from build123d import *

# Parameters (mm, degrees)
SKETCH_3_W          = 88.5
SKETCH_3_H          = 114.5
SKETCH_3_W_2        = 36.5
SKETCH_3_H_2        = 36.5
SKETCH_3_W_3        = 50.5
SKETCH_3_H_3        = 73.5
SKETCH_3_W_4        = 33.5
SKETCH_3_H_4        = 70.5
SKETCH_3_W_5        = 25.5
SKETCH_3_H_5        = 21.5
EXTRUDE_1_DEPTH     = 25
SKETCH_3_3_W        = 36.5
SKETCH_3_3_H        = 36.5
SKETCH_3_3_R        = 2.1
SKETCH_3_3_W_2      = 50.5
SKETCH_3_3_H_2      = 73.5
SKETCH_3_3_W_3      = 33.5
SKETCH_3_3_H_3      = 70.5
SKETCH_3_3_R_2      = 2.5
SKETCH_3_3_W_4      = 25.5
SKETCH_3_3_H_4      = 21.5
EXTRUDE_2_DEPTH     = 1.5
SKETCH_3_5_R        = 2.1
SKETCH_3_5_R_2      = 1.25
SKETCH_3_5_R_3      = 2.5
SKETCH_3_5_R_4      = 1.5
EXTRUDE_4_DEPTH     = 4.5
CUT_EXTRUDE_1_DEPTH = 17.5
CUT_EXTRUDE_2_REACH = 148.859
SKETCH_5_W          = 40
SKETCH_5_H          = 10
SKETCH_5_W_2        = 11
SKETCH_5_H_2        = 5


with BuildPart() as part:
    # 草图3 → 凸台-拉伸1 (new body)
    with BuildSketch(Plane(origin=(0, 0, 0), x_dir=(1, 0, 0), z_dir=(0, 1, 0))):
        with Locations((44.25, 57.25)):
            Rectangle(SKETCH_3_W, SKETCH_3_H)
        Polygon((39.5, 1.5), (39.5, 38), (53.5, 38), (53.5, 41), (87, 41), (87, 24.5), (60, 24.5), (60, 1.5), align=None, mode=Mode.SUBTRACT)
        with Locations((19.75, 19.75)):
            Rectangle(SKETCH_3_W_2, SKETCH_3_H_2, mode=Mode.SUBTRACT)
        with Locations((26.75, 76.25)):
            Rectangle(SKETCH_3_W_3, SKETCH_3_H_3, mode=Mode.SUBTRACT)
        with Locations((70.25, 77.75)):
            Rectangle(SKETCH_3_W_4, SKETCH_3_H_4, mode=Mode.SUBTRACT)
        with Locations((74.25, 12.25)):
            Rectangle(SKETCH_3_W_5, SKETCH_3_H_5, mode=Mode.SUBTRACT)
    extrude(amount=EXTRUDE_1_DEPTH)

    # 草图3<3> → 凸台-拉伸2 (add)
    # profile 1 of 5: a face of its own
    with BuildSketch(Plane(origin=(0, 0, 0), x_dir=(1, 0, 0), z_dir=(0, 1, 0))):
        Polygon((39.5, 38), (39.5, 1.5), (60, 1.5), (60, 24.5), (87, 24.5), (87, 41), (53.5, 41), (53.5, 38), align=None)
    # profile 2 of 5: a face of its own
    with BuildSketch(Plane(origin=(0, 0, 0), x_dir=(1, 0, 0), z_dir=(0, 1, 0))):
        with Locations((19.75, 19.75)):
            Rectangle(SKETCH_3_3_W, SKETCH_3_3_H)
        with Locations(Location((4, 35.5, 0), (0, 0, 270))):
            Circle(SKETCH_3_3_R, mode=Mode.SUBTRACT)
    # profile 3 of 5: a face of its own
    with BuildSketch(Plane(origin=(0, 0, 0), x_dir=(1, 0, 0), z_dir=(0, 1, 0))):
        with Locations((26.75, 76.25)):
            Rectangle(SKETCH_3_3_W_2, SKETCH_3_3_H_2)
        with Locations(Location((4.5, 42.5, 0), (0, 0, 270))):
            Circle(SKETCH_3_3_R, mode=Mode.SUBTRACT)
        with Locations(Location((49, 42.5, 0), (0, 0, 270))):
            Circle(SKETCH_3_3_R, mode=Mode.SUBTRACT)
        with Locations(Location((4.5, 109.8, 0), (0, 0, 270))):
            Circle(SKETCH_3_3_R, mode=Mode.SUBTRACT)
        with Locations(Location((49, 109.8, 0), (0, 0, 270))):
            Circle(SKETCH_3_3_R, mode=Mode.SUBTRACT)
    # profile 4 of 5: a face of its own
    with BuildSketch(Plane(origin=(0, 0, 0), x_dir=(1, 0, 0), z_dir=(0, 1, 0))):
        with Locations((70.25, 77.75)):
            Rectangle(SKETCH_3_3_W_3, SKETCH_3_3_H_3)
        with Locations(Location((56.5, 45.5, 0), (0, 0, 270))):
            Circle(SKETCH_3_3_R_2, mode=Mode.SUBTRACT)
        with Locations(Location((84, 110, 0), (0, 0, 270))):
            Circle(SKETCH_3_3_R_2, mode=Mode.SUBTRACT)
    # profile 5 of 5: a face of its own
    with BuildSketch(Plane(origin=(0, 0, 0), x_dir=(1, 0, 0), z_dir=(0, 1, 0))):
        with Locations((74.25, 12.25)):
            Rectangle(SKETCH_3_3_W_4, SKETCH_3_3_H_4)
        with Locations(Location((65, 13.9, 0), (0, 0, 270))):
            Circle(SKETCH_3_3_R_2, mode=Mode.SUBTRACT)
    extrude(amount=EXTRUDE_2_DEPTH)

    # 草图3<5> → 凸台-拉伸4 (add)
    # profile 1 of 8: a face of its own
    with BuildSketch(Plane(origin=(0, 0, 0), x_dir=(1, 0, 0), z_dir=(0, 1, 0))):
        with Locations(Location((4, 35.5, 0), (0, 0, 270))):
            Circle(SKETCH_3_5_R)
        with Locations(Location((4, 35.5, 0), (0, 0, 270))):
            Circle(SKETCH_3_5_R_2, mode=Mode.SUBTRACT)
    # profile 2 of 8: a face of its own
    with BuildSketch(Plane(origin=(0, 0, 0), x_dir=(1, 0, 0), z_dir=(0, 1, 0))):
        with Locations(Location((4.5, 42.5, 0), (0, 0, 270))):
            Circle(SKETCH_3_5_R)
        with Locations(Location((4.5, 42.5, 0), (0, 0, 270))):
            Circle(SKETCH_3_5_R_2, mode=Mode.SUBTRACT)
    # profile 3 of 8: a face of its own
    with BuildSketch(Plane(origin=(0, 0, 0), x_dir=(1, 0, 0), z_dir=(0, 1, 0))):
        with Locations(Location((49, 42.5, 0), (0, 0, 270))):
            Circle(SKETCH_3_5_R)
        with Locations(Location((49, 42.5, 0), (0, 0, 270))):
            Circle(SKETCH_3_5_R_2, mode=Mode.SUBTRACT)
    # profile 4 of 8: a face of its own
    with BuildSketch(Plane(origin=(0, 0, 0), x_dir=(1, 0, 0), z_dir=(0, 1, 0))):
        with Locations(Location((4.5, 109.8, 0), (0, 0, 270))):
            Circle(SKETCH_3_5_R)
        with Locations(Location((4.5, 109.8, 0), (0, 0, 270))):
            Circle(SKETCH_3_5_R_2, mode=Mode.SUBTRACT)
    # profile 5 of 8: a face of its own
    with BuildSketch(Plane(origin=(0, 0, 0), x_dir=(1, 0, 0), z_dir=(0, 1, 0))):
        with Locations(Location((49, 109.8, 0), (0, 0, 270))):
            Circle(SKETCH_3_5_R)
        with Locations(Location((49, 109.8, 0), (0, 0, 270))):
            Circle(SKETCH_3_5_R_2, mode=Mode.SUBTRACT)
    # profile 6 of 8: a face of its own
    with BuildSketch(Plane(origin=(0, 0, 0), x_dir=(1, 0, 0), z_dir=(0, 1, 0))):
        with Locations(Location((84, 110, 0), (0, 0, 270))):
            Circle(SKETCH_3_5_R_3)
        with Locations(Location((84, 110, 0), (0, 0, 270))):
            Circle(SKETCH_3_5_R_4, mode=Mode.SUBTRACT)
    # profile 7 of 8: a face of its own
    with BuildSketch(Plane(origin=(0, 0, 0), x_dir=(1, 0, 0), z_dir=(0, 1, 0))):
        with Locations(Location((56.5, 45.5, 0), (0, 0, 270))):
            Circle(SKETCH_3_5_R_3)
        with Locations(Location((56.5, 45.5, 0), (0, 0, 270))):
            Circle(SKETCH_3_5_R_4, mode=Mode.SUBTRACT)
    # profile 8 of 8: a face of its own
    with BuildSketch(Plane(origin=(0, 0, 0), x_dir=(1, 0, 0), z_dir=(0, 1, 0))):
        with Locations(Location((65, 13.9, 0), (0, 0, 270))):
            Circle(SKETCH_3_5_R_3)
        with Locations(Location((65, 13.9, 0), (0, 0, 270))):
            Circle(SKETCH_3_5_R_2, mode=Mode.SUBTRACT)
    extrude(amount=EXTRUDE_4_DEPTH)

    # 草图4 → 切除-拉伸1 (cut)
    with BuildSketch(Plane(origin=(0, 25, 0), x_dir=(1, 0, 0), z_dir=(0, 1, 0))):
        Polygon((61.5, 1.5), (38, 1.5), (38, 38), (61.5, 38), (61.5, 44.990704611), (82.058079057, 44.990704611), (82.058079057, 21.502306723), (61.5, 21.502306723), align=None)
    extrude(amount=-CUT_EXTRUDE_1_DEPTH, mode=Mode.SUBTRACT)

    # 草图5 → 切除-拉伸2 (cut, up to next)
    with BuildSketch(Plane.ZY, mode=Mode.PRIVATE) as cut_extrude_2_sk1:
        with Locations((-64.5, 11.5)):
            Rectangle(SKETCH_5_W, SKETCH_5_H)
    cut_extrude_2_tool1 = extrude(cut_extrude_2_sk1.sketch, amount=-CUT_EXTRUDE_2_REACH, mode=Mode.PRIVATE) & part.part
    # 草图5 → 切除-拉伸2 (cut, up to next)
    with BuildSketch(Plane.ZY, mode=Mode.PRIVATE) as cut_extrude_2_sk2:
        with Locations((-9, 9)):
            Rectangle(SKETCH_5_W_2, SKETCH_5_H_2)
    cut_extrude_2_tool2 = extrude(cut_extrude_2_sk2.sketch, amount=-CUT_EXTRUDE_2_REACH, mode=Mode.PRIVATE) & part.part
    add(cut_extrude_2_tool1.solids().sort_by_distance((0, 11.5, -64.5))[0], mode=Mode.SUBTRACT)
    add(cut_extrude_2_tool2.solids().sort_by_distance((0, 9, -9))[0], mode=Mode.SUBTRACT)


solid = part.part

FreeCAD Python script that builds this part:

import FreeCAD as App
import Part
import Sketcher
Q = App.Units.Quantity


def add_polygon(sketch, points):
    """Adds a closed chain of lines whose ends are joined by coincident constraints."""
    first, n = sketch.GeometryCount, len(points)
    for a, b in zip(points, points[1:] + points[:1]):
        sketch.addGeometry(Part.LineSegment(App.Vector(*a, 0), App.Vector(*b, 0)), False)
    for i in range(n):
        sketch.addConstraint(Sketcher.Constraint("Coincident", first + i, 2, first + (i + 1) % n, 1))

doc = App.newDocument("Part")
body = doc.addObject("PartDesign::Body", "Body")

# Sketch on XZ plane
sketch1 = body.newObject("Sketcher::SketchObject", "Sketch")
sketch1.AttachmentSupport = (doc.getObject("XZ_Plane"), [""])
sketch1.MapMode = "FlatFace"
add_polygon(sketch1, [(0, -114.5), (0, 0), (88.5, 0), (88.5, -114.5)])  # lines 0-3
add_polygon(sketch1, [(38, -1.5), (1.5, -1.5), (1.5, -38), (38, -38)])  # lines 4-7
add_polygon(sketch1, [(60, -1.5), (39.5, -1.5), (39.5, -38), (53.5, -38), (53.5, -41), (87, -41), (87, -24.5), (60, -24.5)])  # lines 8-15
add_polygon(sketch1, [(87, -1.5), (61.5, -1.5), (61.5, -23), (87, -23)])  # lines 16-19
add_polygon(sketch1, [(52, -39.5), (1.5, -39.5), (1.5, -113), (52, -113)])  # lines 20-23
add_polygon(sketch1, [(87, -42.5), (53.5, -42.5), (53.5, -113), (87, -113)])  # lines 24-27
sketch1.addConstraint([
    Sketcher.Constraint("Vertical", 0),
    Sketcher.Constraint("Horizontal", 1),
    Sketcher.Constraint("Vertical", 2),
    Sketcher.Constraint("Horizontal", 3),
    Sketcher.Constraint("Horizontal", 4),
    Sketcher.Constraint("Vertical", 5),
    Sketcher.Constraint("Horizontal", 6),
    Sketcher.Constraint("Vertical", 7),
    Sketcher.Constraint("Horizontal", 8),
    Sketcher.Constraint("Vertical", 9),
    Sketcher.Constraint("Horizontal", 10),
    Sketcher.Constraint("Vertical", 11),
    Sketcher.Constraint("Horizontal", 12),
    Sketcher.Constraint("Vertical", 13),
    Sketcher.Constraint("Horizontal", 14),
    Sketcher.Constraint("Vertical", 15),
    Sketcher.Constraint("Horizontal", 16),
    Sketcher.Constraint("Vertical", 17),
    Sketcher.Constraint("Horizontal", 18),
    Sketcher.Constraint("Vertical", 19),
    Sketcher.Constraint("Horizontal", 20),
    Sketcher.Constraint("Vertical", 21),
    Sketcher.Constraint("Horizontal", 22),
    Sketcher.Constraint("Vertical", 23),
    Sketcher.Constraint("Horizontal", 24),
    Sketcher.Constraint("Vertical", 25),
    Sketcher.Constraint("Horizontal", 26),
    Sketcher.Constraint("Vertical", 27),
    Sketcher.Constraint("Coincident", 0, 2, -1, 1),
    Sketcher.Constraint("Horizontal", 7, 2, 8, 2),
    Sketcher.Constraint("Horizontal", 6, 2, 9, 2),
    Sketcher.Constraint("Horizontal", 15, 2, 16, 2),
    Sketcher.Constraint("Horizontal", 22, 2, 25, 2),
    Sketcher.Constraint("Vertical", 13, 2, 18, 2),
    Sketcher.Constraint("Vertical", 5, 2, 20, 2),
    Sketcher.Constraint("Vertical", 11, 2, 24, 2),
    Sketcher.Constraint("Vertical", 19, 2, 26, 2),
    Sketcher.Constraint("Equal", 6, 5),
    Sketcher.Constraint("DistanceX", 10, 1, 10, 2, Q("14 mm")),
    Sketcher.Constraint("DistanceX", 14, 2, 14, 1, Q("27 mm")),
    Sketcher.Constraint("DistanceY", 11, 2, 11, 1, Q("3 mm")),
    Sketcher.Constraint("DistanceY", 15, 1, 15, 2, Q("23 mm")),
    Sketcher.Constraint("DistanceX", 1, 1, 1, 2, Q("88.5 mm")),
    Sketcher.Constraint("DistanceX", 4, 2, 4, 1, Q("36.5 mm")),
    Sketcher.Constraint("DistanceX", 8, 2, 8, 1, Q("20.5 mm")),
    Sketcher.Constraint("DistanceX", 16, 2, 16, 1, Q("25.5 mm")),
    Sketcher.Constraint("DistanceX", 20, 2, 20, 1, Q("50.5 mm")),
    Sketcher.Constraint("DistanceY", 0, 1, 0, 2, Q("114.5 mm")),
    Sketcher.Constraint("DistanceY", 17, 2, 17, 1, Q("21.5 mm")),
    Sketcher.Constraint("DistanceY", 21, 2, 21, 1, Q("73.5 mm")),
    Sketcher.Constraint("DistanceY", 25, 2, 25, 1, Q("70.5 mm")),
    Sketcher.Constraint("DistanceY", 5, 2, -1, 1, Q("38 mm")),
    Sketcher.Constraint("DistanceX", -1, 1, 6, 2, Q("38 mm")),
    Sketcher.Constraint("DistanceX", -1, 1, 12, 2, Q("87 mm")),
    Sketcher.Constraint("DistanceY", 21, 2, -1, 1, Q("113 mm")),
])
pad1 = body.newObject("PartDesign::Pad", "Pad")
pad1.Profile = sketch1
pad1.Length = 25
pad1.Reversed = True

# Sketch on XZ plane
sketch2 = body.newObject("Sketcher::SketchObject", "Sketch001")
sketch2.AttachmentSupport = (doc.getObject("XZ_Plane"), [""])
sketch2.MapMode = "FlatFace"
add_polygon(sketch2, [(39.5, -38), (39.5, -1.5), (60, -1.5), (60, -24.5), (87, -24.5), (87, -41), (53.5, -41), (53.5, -38)])  # lines 0-7
add_polygon(sketch2, [(1.5, -38), (1.5, -1.5), (38, -1.5), (38, -38)])  # lines 8-11
sketch2.addGeometry(Part.Circle(App.Vector(4, -35.5, 0), App.Vector(0, 0, 1), 2.1), False)  # 12
add_polygon(sketch2, [(1.5, -113), (1.5, -39.5), (52, -39.5), (52, -113)])  # lines 13-16
sketch2.addGeometry(Part.Circle(App.Vector(4.5, -42.5, 0), App.Vector(0, 0, 1), 2.1), False)  # 17
sketch2.addGeometry(Part.Circle(App.Vector(49, -42.5, 0), App.Vector(0, 0, 1), 2.1), False)  # 18
sketch2.addGeometry(Part.Circle(App.Vector(4.5, -109.8, 0), App.Vector(0, 0, 1), 2.1), False)  # 19
sketch2.addGeometry(Part.Circle(App.Vector(49, -109.8, 0), App.Vector(0, 0, 1), 2.1), False)  # 20
add_polygon(sketch2, [(53.5, -113), (53.5, -42.5), (87, -42.5), (87, -113)])  # lines 21-24
sketch2.addGeometry(Part.Circle(App.Vector(56.5, -45.5, 0), App.Vector(0, 0, 1), 2.5), False)  # 25
sketch2.addGeometry(Part.Circle(App.Vector(84, -110, 0), App.Vector(0, 0, 1), 2.5), False)  # 26
add_polygon(sketch2, [(61.5, -23), (61.5, -1.5), (87, -1.5), (87, -23)])  # lines 27-30
sketch2.addGeometry(Part.Circle(App.Vector(65, -13.9, 0), App.Vector(0, 0, 1), 2.5), False)  # 31
sketch2.addConstraint([
    Sketcher.Constraint("Vertical", 0),
    Sketcher.Constraint("Horizontal", 1),
    Sketcher.Constraint("Vertical", 2),
    Sketcher.Constraint("Horizontal", 3),
    Sketcher.Constraint("Vertical", 4),
    Sketcher.Constraint("Horizontal", 5),
    Sketcher.Constraint("Vertical", 6),
    Sketcher.Constraint("Horizontal", 7),
    Sketcher.Constraint("Vertical", 8),
    Sketcher.Constraint("Horizontal", 9),
    Sketcher.Constraint("Vertical", 10),
    Sketcher.Constraint("Horizontal", 11),
    Sketcher.Constraint("Vertical", 13),
    Sketcher.Constraint("Horizontal", 14),
    Sketcher.Constraint("Vertical", 15),
    Sketcher.Constraint("Horizontal", 16),
    Sketcher.Constraint("Vertical", 21),
    Sketcher.Constraint("Horizontal", 22),
    Sketcher.Constraint("Vertical", 23),
    Sketcher.Constraint("Horizontal", 24),
    Sketcher.Constraint("Vertical", 27),
    Sketcher.Constraint("Horizontal", 28),
    Sketcher.Constraint("Vertical", 29),
    Sketcher.Constraint("Horizontal", 30),
    Sketcher.Constraint("Equal", 12, 17),
    Sketcher.Constraint("Equal", 17, 18),
    Sketcher.Constraint("Equal", 18, 19),
    Sketcher.Constraint("Equal", 19, 20),
    Sketcher.Constraint("Equal", 25, 26),
    Sketcher.Constraint("Equal", 26, 31),
    Sketcher.Constraint("Horizontal", 17, 3, 18, 3),
    Sketcher.Constraint("Horizontal", 19, 3, 20, 3),
    Sketcher.Constraint("Horizontal", 1, 2, 8, 2),
    Sketcher.Constraint("Horizontal", 7, 2, 10, 2),
    Sketcher.Constraint("Horizontal", 18, 3, 21, 2),
    Sketcher.Constraint("Horizontal", 16, 2, 23, 2),
    Sketcher.Constraint("Horizontal", 9, 2, 27, 2),
    Sketcher.Constraint("Vertical", 17, 3, 19, 3),
    Sketcher.Constraint("Vertical", 18, 3, 20, 3),
    Sketcher.Constraint("Vertical", 11, 2, 13, 2),
    Sketcher.Constraint("Vertical", 6, 2, 21, 2),
    Sketcher.Constraint("Vertical", 4, 2, 22, 2),
    Sketcher.Constraint("Vertical", 23, 2, 28, 2),
    Sketcher.Constraint("Equal", 11, 0),
    Sketcher.Constraint("Diameter", 25, Q("5 mm")),
    Sketcher.Constraint("Diameter", 12, Q("4.2 mm")),
    Sketcher.Constraint("DistanceX", 3, 1, 3, 2, Q("27 mm")),
    Sketcher.Constraint("DistanceX", 7, 2, 7, 1, Q("14 mm")),
    Sketcher.Constraint("DistanceY", 2, 2, 2, 1, Q("23 mm")),
    Sketcher.Constraint("DistanceY", 6, 1, 6, 2, Q("3 mm")),
    Sketcher.Constraint("DistanceX", 1, 1, 1, 2, Q("20.5 mm")),
    Sketcher.Constraint("DistanceX", 9, 1, 9, 2, Q("36.5 mm")),
    Sketcher.Constraint("DistanceX", 14, 1, 14, 2, Q("50.5 mm")),
    Sketcher.Constraint("DistanceX", 28, 1, 28, 2, Q("25.5 mm")),
    Sketcher.Constraint("DistanceY", 13, 1, 13, 2, Q("73.5 mm")),
    Sketcher.Constraint("DistanceY", 21, 1, 21, 2, Q("70.5 mm")),
    Sketcher.Constraint("DistanceY", 27, 1, 27, 2, Q("21.5 mm")),
    Sketcher.Constraint("DistanceX", -1, 1, 12, 3, Q("4 mm")),
    Sketcher.Constraint("DistanceX", -1, 1, 18, 3, Q("49 mm")),
    Sketcher.Constraint("DistanceX", -1, 1, 26, 3, Q("84 mm")),
    Sketcher.Constraint("DistanceY", 26, 3, -1, 1, Q("110 mm")),
    Sketcher.Constraint("DistanceX", -1, 1, 31, 3, Q("65 mm")),
    Sketcher.Constraint("DistanceX", -1, 1, 1, 2, Q("60 mm")),
    Sketcher.Constraint("DistanceY", 4, 2, -1, 1, Q("41 mm")),
    Sketcher.Constraint("DistanceX", -1, 1, 9, 2, Q("38 mm")),
    Sketcher.Constraint("DistanceY", 15, 2, -1, 1, Q("113 mm")),
    Sketcher.Constraint("DistanceY", 17, 3, 12, 3, Q("7 mm")),
    Sketcher.Constraint("DistanceY", 25, 3, 18, 3, Q("3 mm")),
    Sketcher.Constraint("DistanceX", 17, 3, 25, 3, Q("52 mm")),
    Sketcher.Constraint("DistanceX", 0, 2, 25, 3, Q("17 mm")),
    Sketcher.Constraint("DistanceY", 19, 3, -1, 1, Q("109.8 mm")),
    Sketcher.Constraint("DistanceY", 31, 3, -1, 1, Q("13.9 mm")),
])
pad2 = body.newObject("PartDesign::Pad", "Pad001")
pad2.Profile = sketch2
pad2.Length = 1.5
pad2.Reversed = True

# Sketch on XZ plane
sketch3 = body.newObject("Sketcher::SketchObject", "Sketch002")
sketch3.AttachmentSupport = (doc.getObject("XZ_Plane"), [""])
sketch3.MapMode = "FlatFace"
sketch3.addGeometry([
    Part.Circle(App.Vector(4, -35.5, 0), App.Vector(0, 0, 1), 2.1),  # 0
    Part.Circle(App.Vector(4, -35.5, 0), App.Vector(0, 0, 1), 1.25),  # 1
    Part.Circle(App.Vector(4.5, -42.5, 0), App.Vector(0, 0, 1), 2.1),  # 2
    Part.Circle(App.Vector(4.5, -42.5, 0), App.Vector(0, 0, 1), 1.25),  # 3
    Part.Circle(App.Vector(49, -42.5, 0), App.Vector(0, 0, 1), 2.1),  # 4
    Part.Circle(App.Vector(49, -42.5, 0), App.Vector(0, 0, 1), 1.25),  # 5
    Part.Circle(App.Vector(4.5, -109.8, 0), App.Vector(0, 0, 1), 2.1),  # 6
    Part.Circle(App.Vector(4.5, -109.8, 0), App.Vector(0, 0, 1), 1.25),  # 7
    Part.Circle(App.Vector(49, -109.8, 0), App.Vector(0, 0, 1), 2.1),  # 8
    Part.Circle(App.Vector(49, -109.8, 0), App.Vector(0, 0, 1), 1.25),  # 9
    Part.Circle(App.Vector(84, -110, 0), App.Vector(0, 0, 1), 2.5),  # 10
    Part.Circle(App.Vector(84, -110, 0), App.Vector(0, 0, 1), 1.5),  # 11
    Part.Circle(App.Vector(56.5, -45.5, 0), App.Vector(0, 0, 1), 2.5),  # 12
    Part.Circle(App.Vector(56.5, -45.5, 0), App.Vector(0, 0, 1), 1.5),  # 13
    Part.Circle(App.Vector(65, -13.9, 0), App.Vector(0, 0, 1), 2.5),  # 14
    Part.Circle(App.Vector(65, -13.9, 0), App.Vector(0, 0, 1), 1.25),  # 15
], False)
sketch3.addConstraint([
    Sketcher.Constraint("Coincident", 1, 3, 0, 3),
    Sketcher.Constraint("Coincident", 3, 3, 2, 3),
    Sketcher.Constraint("Coincident", 5, 3, 4, 3),
    Sketcher.Constraint("Coincident", 7, 3, 6, 3),
    Sketcher.Constraint("Coincident", 9, 3, 8, 3),
    Sketcher.Constraint("Coincident", 11, 3, 10, 3),
    Sketcher.Constraint("Coincident", 13, 3, 12, 3),
    Sketcher.Constraint("Coincident", 15, 3, 14, 3),
    Sketcher.Constraint("Equal", 0, 2),
    Sketcher.Constraint("Equal", 1, 3),
    Sketcher.Constraint("Equal", 2, 4),
    Sketcher.Constraint("Equal", 3, 5),
    Sketcher.Constraint("Equal", 4, 6),
    Sketcher.Constraint("Equal", 5, 7),
    Sketcher.Constraint("Equal", 6, 8),
    Sketcher.Constraint("Equal", 7, 9),
    Sketcher.Constraint("Equal", 10, 12),
    Sketcher.Constraint("Equal", 11, 13),
    Sketcher.Constraint("Equal", 12, 14),
    Sketcher.Constraint("Equal", 9, 15),
    Sketcher.Constraint("Horizontal", 3, 3, 4, 3),
    Sketcher.Constraint("Horizontal", 7, 3, 8, 3),
    Sketcher.Constraint("Vertical", 3, 3, 6, 3),
    Sketcher.Constraint("Vertical", 5, 3, 8, 3),
    Sketcher.Constraint("Diameter", 10, Q("5 mm")),
    Sketcher.Constraint("Diameter", 11, Q("3 mm")),
    Sketcher.Constraint("Diameter", 0, Q("4.2 mm")),
    Sketcher.Constraint("Diameter", 1, Q("2.5 mm")),
    Sketcher.Constraint("DistanceX", -1, 1, 0, 3, Q("4 mm")),
    Sketcher.Constraint("DistanceX", -1, 1, 4, 3, Q("49 mm")),
    Sketcher.Constraint("DistanceX", -1, 1, 10, 3, Q("84 mm")),
    Sketcher.Constraint("DistanceY", 10, 3, -1, 1, Q("110 mm")),
    Sketcher.Constraint("DistanceX", -1, 1, 14, 3, Q("65 mm")),
    Sketcher.Constraint("DistanceY", 2, 3, 0, 3, Q("7 mm")),
    Sketcher.Constraint("DistanceY", 12, 3, 4, 3, Q("3 mm")),
    Sketcher.Constraint("DistanceX", 2, 3, 12, 3, Q("52 mm")),
    Sketcher.Constraint("DistanceY", 0, 3, -1, 1, Q("35.5 mm")),
    Sketcher.Constraint("DistanceX", -1, 1, 2, 3, Q("4.5 mm")),
    Sketcher.Constraint("DistanceY", 6, 3, -1, 1, Q("109.8 mm")),
    Sketcher.Constraint("DistanceY", 14, 3, -1, 1, Q("13.9 mm")),
])
pad3 = body.newObject("PartDesign::Pad", "Pad002")
pad3.Profile = sketch3
pad3.Length = 4.5
pad3.Reversed = True

# Sketch on XZ plane
sketch4 = body.newObject("Sketcher::SketchObject", "Sketch003")
sketch4.AttachmentSupport = (doc.getObject("XZ_Plane"), [""])
sketch4.MapMode = "FlatFace"
sketch4.AttachmentOffset = App.Placement(App.Vector(0, 0, -25), App.Rotation())
add_polygon(sketch4, [(38, -1.5), (61.5, -1.5), (61.5, -21.502307), (82.058079, -21.502307), (82.058079, -44.990705), (61.5, -44.990705), (61.5, -38), (38, -38)])  # lines 0-7
sketch4.addConstraint([
    Sketcher.Constraint("Horizontal", 0),
    Sketcher.Constraint("Vertical", 1),
    Sketcher.Constraint("Horizontal", 2),
    Sketcher.Constraint("Vertical", 3),
    Sketcher.Constraint("Horizontal", 4),
    Sketcher.Constraint("Vertical", 5),
    Sketcher.Constraint("Horizontal", 6),
    Sketcher.Constraint("Vertical", 7),
    Sketcher.Constraint("Vertical", 1, 2, 4, 2),
    Sketcher.Constraint("DistanceX", 0, 1, 0, 2, Q("23.5 mm")),
    Sketcher.Constraint("DistanceY", 7, 1, 7, 2, Q("36.5 mm")),
    Sketcher.Constraint("DistanceY", 5, 2, -1, 1, Q("38 mm")),
    Sketcher.Constraint("DistanceX", -1, 1, 6, 2, Q("38 mm")),
    Sketcher.Constraint("DistanceX", 2, 1, 2, 2, Q("20.558079 mm")),
    Sketcher.Constraint("DistanceY", 1, 2, 1, 1, Q("20.002307 mm")),
    Sketcher.Constraint("DistanceY", 3, 2, 3, 1, Q("23.488398 mm")),
])
pocket1 = body.newObject("PartDesign::Pocket", "Pocket")
pocket1.Profile = sketch4
pocket1.Length = 17.5
pocket1.Reversed = True

# Sketch on YZ plane
sketch5 = body.newObject("Sketcher::SketchObject", "Sketch004")
sketch5.AttachmentSupport = (doc.getObject("YZ_Plane"), [""])
sketch5.MapMode = "FlatFace"
add_polygon(sketch5, [(16.5, -84.5), (6.5, -84.5), (6.5, -44.5), (16.5, -44.5)])  # lines 0-3
sketch5.addConstraint([
    Sketcher.Constraint("Horizontal", 0),
    Sketcher.Constraint("Vertical", 1),
    Sketcher.Constraint("Horizontal", 2),
    Sketcher.Constraint("Vertical", 3),
    Sketcher.Constraint("DistanceX", 0, 2, 0, 1, Q("10 mm")),
    Sketcher.Constraint("DistanceY", 1, 1, 1, 2, Q("40 mm")),
    Sketcher.Constraint("DistanceX", -1, 1, 0, 2, Q("6.5 mm")),
    Sketcher.Constraint("DistanceY", 0, 2, -1, 1, Q("84.5 mm")),
])
pocket2 = body.newObject("PartDesign::Pocket", "Pocket001")
pocket2.Profile = sketch5
pocket2.Type = "UpToFirst"
pocket2.Reversed = True

# Sketch on YZ plane
sketch6 = body.newObject("Sketcher::SketchObject", "Sketch005")
sketch6.AttachmentSupport = (doc.getObject("YZ_Plane"), [""])
sketch6.MapMode = "FlatFace"
add_polygon(sketch6, [(11.5, -14.5), (6.5, -14.5), (6.5, -3.5), (11.5, -3.5)])  # lines 0-3
sketch6.addConstraint([
    Sketcher.Constraint("Horizontal", 0),
    Sketcher.Constraint("Vertical", 1),
    Sketcher.Constraint("Horizontal", 2),
    Sketcher.Constraint("Vertical", 3),
    Sketcher.Constraint("DistanceX", 0, 2, 0, 1, Q("5 mm")),
    Sketcher.Constraint("DistanceY", 1, 1, 1, 2, Q("11 mm")),
    Sketcher.Constraint("DistanceX", -1, 1, 0, 2, Q("6.5 mm")),
    Sketcher.Constraint("DistanceY", 0, 2, -1, 1, Q("14.5 mm")),
])
pocket3 = body.newObject("PartDesign::Pocket", "Pocket002")
pocket3.Profile = sketch6
pocket3.Type = "UpToFirst"
pocket3.Reversed = True

doc.recompute()
